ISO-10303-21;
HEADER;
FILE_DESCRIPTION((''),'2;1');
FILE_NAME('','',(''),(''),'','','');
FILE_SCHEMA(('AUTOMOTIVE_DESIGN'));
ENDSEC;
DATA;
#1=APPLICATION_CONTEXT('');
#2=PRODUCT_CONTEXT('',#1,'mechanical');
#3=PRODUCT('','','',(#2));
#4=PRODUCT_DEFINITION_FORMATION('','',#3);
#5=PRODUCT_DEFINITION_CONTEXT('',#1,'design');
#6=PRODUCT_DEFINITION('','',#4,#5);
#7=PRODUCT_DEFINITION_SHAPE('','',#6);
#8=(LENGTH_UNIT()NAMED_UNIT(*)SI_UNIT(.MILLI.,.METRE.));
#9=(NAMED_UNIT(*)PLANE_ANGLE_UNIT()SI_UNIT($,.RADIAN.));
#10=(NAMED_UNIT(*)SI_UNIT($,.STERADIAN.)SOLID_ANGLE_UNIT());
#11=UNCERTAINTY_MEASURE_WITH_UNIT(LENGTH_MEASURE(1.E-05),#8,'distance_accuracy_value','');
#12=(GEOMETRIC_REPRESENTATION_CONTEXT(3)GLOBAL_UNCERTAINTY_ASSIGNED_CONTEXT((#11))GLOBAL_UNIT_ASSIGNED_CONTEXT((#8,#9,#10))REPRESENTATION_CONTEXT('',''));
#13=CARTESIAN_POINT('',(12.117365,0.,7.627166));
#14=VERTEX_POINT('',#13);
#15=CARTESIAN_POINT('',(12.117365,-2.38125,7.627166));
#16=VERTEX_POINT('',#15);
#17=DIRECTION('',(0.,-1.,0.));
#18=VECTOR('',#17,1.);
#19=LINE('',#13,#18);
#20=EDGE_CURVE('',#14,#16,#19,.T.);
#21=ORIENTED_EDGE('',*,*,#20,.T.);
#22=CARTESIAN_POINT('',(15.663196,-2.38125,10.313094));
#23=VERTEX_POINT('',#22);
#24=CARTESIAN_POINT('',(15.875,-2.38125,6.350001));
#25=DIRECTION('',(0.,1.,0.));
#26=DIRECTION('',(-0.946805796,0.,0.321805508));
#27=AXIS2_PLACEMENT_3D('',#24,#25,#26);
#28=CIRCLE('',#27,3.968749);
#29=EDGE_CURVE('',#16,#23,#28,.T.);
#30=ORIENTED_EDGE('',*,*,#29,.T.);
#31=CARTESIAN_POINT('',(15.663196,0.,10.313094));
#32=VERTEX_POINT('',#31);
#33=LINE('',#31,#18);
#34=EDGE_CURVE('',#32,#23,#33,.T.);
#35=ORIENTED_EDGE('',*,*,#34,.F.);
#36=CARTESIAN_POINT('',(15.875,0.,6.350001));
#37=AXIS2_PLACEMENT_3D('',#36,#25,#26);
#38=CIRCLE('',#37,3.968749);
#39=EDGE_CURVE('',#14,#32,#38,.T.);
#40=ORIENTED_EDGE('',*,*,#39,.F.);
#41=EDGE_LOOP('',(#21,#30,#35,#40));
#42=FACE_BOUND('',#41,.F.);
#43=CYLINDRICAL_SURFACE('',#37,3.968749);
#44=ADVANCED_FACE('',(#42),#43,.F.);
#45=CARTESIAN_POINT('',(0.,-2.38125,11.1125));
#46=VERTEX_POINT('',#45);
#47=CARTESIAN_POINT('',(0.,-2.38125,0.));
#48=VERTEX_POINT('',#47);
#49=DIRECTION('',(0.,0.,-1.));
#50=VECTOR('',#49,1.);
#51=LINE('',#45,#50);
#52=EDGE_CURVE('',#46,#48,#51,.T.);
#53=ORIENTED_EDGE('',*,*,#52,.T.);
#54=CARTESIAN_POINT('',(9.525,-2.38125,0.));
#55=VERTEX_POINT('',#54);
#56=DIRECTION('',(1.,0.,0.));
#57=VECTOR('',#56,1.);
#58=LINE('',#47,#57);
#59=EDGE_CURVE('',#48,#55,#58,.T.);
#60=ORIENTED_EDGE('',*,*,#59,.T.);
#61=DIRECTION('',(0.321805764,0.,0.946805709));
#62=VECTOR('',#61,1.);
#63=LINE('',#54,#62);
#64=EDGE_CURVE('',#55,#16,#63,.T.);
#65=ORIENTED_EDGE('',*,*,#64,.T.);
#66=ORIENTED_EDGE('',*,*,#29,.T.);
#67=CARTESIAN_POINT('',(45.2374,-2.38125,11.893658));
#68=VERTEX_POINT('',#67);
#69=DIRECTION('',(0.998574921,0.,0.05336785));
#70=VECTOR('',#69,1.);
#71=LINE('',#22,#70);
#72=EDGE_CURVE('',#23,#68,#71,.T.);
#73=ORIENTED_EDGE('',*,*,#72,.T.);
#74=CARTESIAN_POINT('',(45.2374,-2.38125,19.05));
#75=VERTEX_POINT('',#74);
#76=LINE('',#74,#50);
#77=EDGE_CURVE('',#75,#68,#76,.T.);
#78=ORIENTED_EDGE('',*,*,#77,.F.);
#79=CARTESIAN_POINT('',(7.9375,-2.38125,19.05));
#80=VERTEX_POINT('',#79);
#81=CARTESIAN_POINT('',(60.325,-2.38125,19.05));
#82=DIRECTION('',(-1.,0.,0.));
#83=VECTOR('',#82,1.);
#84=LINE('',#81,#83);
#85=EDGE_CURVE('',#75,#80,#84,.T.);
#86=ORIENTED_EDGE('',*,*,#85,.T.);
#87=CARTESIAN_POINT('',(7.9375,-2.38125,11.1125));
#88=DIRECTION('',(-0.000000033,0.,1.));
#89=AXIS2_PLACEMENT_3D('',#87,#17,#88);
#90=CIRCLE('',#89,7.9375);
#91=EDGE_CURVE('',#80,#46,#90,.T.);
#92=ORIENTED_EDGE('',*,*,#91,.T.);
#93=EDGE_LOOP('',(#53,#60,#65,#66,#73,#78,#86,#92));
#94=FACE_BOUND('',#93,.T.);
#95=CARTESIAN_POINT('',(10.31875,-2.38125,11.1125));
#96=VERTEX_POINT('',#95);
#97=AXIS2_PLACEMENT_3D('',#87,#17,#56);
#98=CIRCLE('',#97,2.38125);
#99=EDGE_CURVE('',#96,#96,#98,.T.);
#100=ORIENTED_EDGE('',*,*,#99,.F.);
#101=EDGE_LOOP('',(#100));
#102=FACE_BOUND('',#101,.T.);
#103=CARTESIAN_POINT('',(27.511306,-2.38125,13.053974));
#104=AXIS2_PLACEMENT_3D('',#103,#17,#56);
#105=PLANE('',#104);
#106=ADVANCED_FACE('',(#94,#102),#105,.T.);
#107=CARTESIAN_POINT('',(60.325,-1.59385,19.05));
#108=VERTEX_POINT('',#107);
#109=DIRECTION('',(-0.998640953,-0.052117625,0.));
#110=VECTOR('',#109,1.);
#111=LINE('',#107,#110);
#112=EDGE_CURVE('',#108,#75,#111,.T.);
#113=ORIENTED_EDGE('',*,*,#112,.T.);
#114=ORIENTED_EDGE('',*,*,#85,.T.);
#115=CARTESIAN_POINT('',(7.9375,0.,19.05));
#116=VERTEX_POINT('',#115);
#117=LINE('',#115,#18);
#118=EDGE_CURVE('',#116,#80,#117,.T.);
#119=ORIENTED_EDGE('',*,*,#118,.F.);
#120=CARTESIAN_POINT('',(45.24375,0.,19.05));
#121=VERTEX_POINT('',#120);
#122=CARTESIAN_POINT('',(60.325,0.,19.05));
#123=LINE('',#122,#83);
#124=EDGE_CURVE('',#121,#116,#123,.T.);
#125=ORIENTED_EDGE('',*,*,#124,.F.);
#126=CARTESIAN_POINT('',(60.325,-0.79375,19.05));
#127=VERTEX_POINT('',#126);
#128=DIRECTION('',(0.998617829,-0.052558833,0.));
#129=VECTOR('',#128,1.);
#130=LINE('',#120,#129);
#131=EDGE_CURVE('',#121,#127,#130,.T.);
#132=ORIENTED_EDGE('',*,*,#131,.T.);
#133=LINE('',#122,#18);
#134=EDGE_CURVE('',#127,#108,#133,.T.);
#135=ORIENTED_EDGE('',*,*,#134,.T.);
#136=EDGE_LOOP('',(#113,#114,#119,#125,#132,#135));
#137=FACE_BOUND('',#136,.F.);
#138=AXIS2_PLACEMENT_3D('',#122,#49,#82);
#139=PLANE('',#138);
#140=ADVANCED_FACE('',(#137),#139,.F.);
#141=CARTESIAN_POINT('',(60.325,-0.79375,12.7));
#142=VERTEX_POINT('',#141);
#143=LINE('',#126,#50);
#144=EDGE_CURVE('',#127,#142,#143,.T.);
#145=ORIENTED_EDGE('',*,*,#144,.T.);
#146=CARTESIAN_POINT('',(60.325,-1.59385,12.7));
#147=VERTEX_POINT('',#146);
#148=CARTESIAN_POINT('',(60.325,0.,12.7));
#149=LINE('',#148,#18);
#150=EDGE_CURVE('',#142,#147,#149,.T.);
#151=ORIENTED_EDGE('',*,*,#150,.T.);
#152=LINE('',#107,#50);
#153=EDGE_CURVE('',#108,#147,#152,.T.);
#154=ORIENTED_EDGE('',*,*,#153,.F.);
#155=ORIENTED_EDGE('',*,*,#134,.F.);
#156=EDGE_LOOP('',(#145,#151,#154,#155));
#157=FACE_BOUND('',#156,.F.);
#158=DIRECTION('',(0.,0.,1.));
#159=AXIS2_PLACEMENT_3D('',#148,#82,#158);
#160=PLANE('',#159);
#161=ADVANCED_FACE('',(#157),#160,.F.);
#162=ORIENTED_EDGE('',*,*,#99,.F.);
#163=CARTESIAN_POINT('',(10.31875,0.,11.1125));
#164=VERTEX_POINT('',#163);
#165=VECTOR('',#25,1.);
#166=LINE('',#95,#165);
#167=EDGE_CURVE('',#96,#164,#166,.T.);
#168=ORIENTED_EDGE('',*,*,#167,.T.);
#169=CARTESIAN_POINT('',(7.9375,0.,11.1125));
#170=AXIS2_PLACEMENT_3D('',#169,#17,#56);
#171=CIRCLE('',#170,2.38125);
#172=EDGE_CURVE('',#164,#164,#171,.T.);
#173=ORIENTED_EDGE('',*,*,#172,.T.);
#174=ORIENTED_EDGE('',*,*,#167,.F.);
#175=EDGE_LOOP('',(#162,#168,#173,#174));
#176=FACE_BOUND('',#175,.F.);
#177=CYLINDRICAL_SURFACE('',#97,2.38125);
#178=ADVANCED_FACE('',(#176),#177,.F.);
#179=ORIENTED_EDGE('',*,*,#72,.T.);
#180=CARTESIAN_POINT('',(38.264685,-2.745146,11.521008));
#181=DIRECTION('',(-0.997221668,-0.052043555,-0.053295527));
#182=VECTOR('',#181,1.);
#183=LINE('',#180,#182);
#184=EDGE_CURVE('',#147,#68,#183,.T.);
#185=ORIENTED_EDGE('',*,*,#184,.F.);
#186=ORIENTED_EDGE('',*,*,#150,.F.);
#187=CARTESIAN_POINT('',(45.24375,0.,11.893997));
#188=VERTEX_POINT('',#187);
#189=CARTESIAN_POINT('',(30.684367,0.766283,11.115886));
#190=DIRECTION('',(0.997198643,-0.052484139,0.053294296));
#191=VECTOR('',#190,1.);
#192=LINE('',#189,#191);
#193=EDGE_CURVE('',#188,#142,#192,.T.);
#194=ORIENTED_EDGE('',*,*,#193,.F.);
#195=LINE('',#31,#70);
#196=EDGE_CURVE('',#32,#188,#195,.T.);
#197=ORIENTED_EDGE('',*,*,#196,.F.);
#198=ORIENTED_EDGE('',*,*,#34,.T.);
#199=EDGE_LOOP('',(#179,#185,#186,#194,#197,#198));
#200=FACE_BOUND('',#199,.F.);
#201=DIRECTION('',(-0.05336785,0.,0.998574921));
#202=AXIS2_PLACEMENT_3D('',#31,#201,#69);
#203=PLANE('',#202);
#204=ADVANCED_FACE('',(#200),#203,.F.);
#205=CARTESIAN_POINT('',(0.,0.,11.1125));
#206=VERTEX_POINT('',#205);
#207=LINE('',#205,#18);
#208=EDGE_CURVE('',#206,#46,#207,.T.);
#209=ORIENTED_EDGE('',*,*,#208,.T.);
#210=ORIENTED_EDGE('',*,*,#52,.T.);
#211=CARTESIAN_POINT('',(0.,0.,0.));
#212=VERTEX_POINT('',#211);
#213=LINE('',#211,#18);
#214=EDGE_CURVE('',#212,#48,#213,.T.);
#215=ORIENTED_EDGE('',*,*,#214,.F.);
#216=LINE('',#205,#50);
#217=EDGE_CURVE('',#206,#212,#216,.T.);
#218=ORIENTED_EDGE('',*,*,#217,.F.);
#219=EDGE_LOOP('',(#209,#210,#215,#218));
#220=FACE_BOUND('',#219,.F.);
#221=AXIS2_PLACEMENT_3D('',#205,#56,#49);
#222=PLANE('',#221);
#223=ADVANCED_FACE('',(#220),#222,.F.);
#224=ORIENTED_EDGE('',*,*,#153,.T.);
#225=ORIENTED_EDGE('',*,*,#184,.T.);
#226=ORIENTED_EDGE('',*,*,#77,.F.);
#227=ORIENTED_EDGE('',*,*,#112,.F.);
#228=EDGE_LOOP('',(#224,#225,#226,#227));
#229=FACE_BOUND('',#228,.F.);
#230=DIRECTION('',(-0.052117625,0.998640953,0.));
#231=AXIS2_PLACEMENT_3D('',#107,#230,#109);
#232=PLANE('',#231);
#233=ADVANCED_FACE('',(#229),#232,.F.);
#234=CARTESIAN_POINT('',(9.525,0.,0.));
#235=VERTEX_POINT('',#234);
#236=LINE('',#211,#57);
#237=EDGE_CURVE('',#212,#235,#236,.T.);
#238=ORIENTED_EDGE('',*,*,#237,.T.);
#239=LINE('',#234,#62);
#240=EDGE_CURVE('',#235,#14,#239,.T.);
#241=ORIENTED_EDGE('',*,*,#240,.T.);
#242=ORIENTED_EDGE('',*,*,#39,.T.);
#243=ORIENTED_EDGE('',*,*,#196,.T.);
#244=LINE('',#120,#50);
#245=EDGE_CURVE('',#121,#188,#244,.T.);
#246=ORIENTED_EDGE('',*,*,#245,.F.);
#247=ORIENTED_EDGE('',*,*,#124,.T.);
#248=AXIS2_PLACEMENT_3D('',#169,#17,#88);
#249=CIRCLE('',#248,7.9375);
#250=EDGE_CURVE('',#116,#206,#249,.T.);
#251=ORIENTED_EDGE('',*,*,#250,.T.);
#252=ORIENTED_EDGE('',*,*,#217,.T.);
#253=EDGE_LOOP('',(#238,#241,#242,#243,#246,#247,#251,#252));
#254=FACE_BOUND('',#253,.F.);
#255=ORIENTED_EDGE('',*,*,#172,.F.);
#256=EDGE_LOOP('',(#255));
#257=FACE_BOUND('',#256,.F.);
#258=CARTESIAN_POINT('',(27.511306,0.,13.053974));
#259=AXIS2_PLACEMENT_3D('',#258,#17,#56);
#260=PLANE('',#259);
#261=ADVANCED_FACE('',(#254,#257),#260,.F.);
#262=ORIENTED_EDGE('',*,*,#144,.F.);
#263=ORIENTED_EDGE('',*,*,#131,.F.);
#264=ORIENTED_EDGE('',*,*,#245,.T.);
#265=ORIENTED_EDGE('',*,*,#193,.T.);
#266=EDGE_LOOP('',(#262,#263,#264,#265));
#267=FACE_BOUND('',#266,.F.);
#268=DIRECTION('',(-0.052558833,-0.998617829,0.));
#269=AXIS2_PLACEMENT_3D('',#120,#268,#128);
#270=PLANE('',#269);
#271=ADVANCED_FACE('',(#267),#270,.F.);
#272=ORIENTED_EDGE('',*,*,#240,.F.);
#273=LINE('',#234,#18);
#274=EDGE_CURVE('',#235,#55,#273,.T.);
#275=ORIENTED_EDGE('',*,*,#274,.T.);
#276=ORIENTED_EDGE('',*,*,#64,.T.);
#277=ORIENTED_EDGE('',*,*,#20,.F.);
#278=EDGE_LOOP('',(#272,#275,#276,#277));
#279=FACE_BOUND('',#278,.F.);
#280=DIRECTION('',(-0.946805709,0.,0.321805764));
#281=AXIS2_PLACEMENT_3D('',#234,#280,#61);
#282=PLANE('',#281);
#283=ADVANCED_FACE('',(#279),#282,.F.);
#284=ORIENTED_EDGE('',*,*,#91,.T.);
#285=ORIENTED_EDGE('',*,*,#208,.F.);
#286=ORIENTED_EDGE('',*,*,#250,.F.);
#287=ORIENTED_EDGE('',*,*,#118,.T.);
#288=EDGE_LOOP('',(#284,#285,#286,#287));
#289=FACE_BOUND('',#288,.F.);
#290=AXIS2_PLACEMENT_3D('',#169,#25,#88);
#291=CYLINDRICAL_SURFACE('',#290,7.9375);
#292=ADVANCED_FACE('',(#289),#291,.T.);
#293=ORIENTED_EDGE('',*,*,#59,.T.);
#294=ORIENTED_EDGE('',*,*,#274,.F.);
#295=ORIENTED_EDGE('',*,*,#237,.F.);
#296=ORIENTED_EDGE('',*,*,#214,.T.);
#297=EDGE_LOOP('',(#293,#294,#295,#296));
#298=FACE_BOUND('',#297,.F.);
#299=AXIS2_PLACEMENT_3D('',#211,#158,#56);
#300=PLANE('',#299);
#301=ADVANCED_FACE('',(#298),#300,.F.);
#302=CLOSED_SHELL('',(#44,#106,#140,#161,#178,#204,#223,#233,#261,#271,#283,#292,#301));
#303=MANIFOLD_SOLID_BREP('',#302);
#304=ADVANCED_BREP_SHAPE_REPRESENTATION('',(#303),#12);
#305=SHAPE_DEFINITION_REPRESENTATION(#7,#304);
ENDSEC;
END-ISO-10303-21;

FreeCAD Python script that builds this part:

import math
import FreeCAD as App
import Part
import Sketcher

V = App.Vector
Q = App.Units.Quantity


def add_polygon(sketch, points):
    """Adds a closed chain of lines whose ends are joined by coincident constraints."""
    first, n = sketch.GeometryCount, len(points)
    for a, b in zip(points, points[1:] + points[:1]):
        sketch.addGeometry(Part.LineSegment(App.Vector(*a, 0), App.Vector(*b, 0)), False)
    for i in range(n):
        sketch.addConstraint(Sketcher.Constraint("Coincident", first + i, 2, first + (i + 1) % n, 1))

doc = App.newDocument("Part")
body = doc.addObject("PartDesign::Body", "Body")

# Sketch on XZ plane
sketch1 = body.newObject("Sketcher::SketchObject", "Sketch")
sketch1.AttachmentSupport = (doc.getObject("XZ_Plane"), [""])
sketch1.MapMode = "FlatFace"
sketch1.addGeometry(Part.LineSegment(V(60.3, 19.1, 0), V(7.9, 19.1, 0)), False)
sketch1.addGeometry(Part.ArcOfCircle(Part.Circle(V(7.9, 11.1, 0), V(0, 0, 1), 7.9), math.radians(90), math.radians(180)), False)
sketch1.addGeometry(Part.LineSegment(V(0, 11.1, 0), V(0, 0, 0)), False)
sketch1.addGeometry(Part.LineSegment(V(0, 0, 0), V(9.5, 0, 0)), False)
sketch1.addGeometry(Part.LineSegment(V(9.5, 0, 0), V(12.1, 7.6, 0)), False)
sketch1.addGeometry(Part.ArcOfCircle(Part.Circle(V(15.9, 6.4, 0), V(0, 0, 1), 4), math.radians(93), math.radians(161)), False)
sketch1.addGeometry(Part.LineSegment(V(15.7, 10.3, 0), V(60.3, 12.7, 0)), False)
sketch1.addGeometry(Part.LineSegment(V(60.3, 12.7, 0), V(60.3, 19.1, 0)), False)
sketch1.addConstraint(Sketcher.Constraint("Tangent", 0, 2, 1, 1))
sketch1.addConstraint(Sketcher.Constraint("Tangent", 1, 2, 2, 1))
sketch1.addConstraint(Sketcher.Constraint("Coincident", 2, 2, 3, 1))
sketch1.addConstraint(Sketcher.Constraint("Coincident", 3, 2, 4, 1))
sketch1.addConstraint(Sketcher.Constraint("Tangent", 4, 2, 5, 2))
sketch1.addConstraint(Sketcher.Constraint("Tangent", 5, 1, 6, 1))
sketch1.addConstraint(Sketcher.Constraint("Coincident", 6, 2, 7, 1))
sketch1.addConstraint(Sketcher.Constraint("Coincident", 7, 2, 0, 1))
sketch1.addConstraint(Sketcher.Constraint("Horizontal", 0))
sketch1.addConstraint(Sketcher.Constraint("Vertical", 2))
sketch1.addConstraint(Sketcher.Constraint("Horizontal", 3))
sketch1.addConstraint(Sketcher.Constraint("Vertical", 7))
sketch1.addConstraint(Sketcher.Constraint("Coincident", 2, 2, -1, 1))
sketch1.addConstraint(Sketcher.Constraint("Radius", 1, Q("0.3125 in")))
sketch1.addConstraint(Sketcher.Constraint("Radius", 5, Q("0.15625 in")))
sketch1.addConstraint(Sketcher.Constraint("DistanceX", 3, 2, 6, 2, Q("2 in")))
sketch1.addConstraint(Sketcher.Constraint("DistanceY", 7, 1, 7, 2, Q("0.25 in")))
sketch1.addConstraint(Sketcher.Constraint("DistanceY", -1, 1, 6, 2, Q("0.5 in")))
sketch1.addConstraint(Sketcher.Constraint("DistanceY", 5, 3, 0, 2, Q("0.5 in")))
sketch1.addConstraint(Sketcher.Constraint("DistanceX", 0, 2, 0, 1, Q("2.0625 in")))
sketch1.addConstraint(Sketcher.Constraint("DistanceX", 3, 2, 5, 3, Q("0.25 in")))
pad1 = body.newObject("PartDesign::Pad", "Pad")
pad1.Profile = sketch1
pad1.Length = Q("0.09375 in")

# Sketch on XZ plane
sketch2 = body.newObject("Sketcher::SketchObject", "Sketch001")
sketch2.AttachmentSupport = (doc.getObject("XZ_Plane"), [""])
sketch2.MapMode = "FlatFace"
sketch2.AttachmentOffset = App.Placement(V(0, 0, 0.09375 * 25.4), App.Rotation())
sketch2.addGeometry(Part.Circle(V(7.9, 11.1, 0), V(0, 0, 1), 2.4), False)
sketch2.addConstraint(Sketcher.Constraint("Diameter", 0, Q("0.1875 in")))
sketch2.addConstraint(Sketcher.Constraint("DistanceX", -1, 1, 0, 3, Q("0.3125 in")))
sketch2.addConstraint(Sketcher.Constraint("DistanceY", -1, 1, 0, 3, Q("0.4375 in")))
pocket1 = body.newObject("PartDesign::Pocket", "Pocket")
pocket1.Profile = sketch2
pocket1.Length = Q("1 in")

# Sketch on XY plane
sketch3 = body.newObject("Sketcher::SketchObject", "Sketch002")
sketch3.AttachmentSupport = (doc.getObject("XY_Plane"), [""])
sketch3.MapMode = "FlatFace"
sketch3.AttachmentOffset = App.Placement(V(0, 0, 0.75 * 25.4), App.Rotation())
add_polygon(sketch3, [(60.3, -2.4), (60.3, -1.6), (45.2, -2.4)])  # lines 0-2
add_polygon(sketch3, [(60.3, 0), (45.2, 0), (60.3, -0.8)])  # lines 3-5
sketch3.addConstraint(Sketcher.Constraint("Vertical", 0))
sketch3.addConstraint(Sketcher.Constraint("Horizontal", 2))
sketch3.addConstraint(Sketcher.Constraint("Horizontal", 3))
sketch3.addConstraint(Sketcher.Constraint("Vertical", 5))
sketch3.addConstraint(Sketcher.Constraint("PointOnObject", 3, 2, -1))
sketch3.addConstraint(Sketcher.Constraint("Vertical", 2, 2, 4, 2))
sketch3.addConstraint(Sketcher.Constraint("DistanceX", 2, 1, 2, 2, Q("0.594 in")))
sketch3.addConstraint(Sketcher.Constraint("DistanceX", 3, 2, 3, 1, Q("0.59375 in")))
sketch3.addConstraint(Sketcher.Constraint("DistanceY", 0, 1, 0, 2, Q("0.031 in")))
sketch3.addConstraint(Sketcher.Constraint("DistanceY", 5, 1, 5, 2, Q("0.03125 in")))
sketch3.addConstraint(Sketcher.Constraint("DistanceX", -1, 1, 0, 2, Q("2.375 in")))
sketch3.addConstraint(Sketcher.Constraint("DistanceY", 1, 2, -1, 1, Q("0.09375 in")))
pocket2 = body.newObject("PartDesign::Pocket", "Pocket001")
pocket2.Profile = sketch3
pocket2.Length = Q("1 in")

doc.recompute()
